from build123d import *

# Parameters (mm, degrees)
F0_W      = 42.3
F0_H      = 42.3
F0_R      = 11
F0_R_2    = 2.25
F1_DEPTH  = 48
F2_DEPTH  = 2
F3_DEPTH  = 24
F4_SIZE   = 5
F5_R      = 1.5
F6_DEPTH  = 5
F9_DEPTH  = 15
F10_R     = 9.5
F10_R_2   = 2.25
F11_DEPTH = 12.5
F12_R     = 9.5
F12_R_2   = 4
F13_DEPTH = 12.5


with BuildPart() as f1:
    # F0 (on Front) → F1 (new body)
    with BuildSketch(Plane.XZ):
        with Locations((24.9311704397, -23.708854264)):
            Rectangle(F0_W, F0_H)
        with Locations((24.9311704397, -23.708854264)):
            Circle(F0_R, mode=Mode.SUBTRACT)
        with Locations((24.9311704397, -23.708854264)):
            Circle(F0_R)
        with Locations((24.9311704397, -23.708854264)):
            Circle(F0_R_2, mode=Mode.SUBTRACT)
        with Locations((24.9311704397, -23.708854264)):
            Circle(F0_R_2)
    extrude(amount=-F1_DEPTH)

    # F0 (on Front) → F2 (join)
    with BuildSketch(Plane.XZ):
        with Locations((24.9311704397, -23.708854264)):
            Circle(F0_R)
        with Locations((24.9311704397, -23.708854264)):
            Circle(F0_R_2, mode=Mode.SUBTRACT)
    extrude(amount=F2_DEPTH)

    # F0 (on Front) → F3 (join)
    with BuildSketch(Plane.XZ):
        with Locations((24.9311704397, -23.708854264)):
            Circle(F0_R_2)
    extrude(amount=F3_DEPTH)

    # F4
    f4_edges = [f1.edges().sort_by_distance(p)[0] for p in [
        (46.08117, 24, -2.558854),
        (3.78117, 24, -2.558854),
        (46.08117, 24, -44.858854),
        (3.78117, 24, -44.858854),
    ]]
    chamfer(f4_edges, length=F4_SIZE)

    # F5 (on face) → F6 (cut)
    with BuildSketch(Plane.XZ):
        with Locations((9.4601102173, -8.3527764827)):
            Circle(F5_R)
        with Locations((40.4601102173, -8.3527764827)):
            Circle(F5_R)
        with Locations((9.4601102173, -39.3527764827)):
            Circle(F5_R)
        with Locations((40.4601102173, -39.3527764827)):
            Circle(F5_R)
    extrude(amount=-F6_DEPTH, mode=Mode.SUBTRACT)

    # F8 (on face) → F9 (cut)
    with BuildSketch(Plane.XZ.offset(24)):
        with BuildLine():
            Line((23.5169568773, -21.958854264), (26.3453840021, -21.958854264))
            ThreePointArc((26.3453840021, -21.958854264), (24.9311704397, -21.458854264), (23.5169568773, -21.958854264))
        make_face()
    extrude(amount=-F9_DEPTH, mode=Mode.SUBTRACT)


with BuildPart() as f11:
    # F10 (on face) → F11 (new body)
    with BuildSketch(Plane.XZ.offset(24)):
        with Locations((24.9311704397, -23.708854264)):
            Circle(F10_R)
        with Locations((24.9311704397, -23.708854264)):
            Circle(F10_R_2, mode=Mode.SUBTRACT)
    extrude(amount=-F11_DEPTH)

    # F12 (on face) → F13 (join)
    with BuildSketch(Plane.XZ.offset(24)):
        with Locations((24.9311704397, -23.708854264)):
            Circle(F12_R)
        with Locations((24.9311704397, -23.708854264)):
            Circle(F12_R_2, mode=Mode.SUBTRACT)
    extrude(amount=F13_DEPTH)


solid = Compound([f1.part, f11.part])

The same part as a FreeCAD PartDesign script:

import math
import FreeCAD as App
import Part
import Sketcher

V = App.Vector
Q = App.Units.Quantity


def edges_at(feature, points):
    """Names of the edges that pass closest to the given points."""
    edges = feature.Shape.Edges
    near = lambda p: min(range(len(edges)), key=lambda i: edges[i].distToShape(Part.Vertex(*p))[0])
    return sorted({f"Edge{near(p) + 1}" for p in points})


def add_polygon(sketch, points):
    """Adds a closed chain of lines whose ends are joined by coincident constraints."""
    first, n = sketch.GeometryCount, len(points)
    for a, b in zip(points, points[1:] + points[:1]):
        sketch.addGeometry(Part.LineSegment(App.Vector(*a, 0), App.Vector(*b, 0)), False)
    for i in range(n):
        sketch.addConstraint(Sketcher.Constraint("Coincident", first + i, 2, first + (i + 1) % n, 1))

doc = App.newDocument("Part")
params = doc.addObject("Spreadsheet::Sheet", "Params")
for row, (alias, value) in enumerate([
    ("sketch1_width", "42.3 mm"),
    ("pad1_length", "48 mm"),
    ("sketch2_diameter", "22 mm"),
    ("sketch2_diameter2", "4.5 mm"),
    ("pad2_length", "2 mm"),
    ("sketch3_diameter", "4.5 mm"),
    ("pad3_length", "24 mm"),
    ("chamfer_size", "5 mm"),
    ("sketch4_diameter", "3 mm"),
    ("pocket1_length", "5 mm"),
    ("sketch5_radius", "2.25 mm"),
    ("pocket2_length", "15 mm"),
    ("sketch6_diameter", "19 mm"),
    ("sketch6_diameter2", "4.5 mm"),
    ("pad4_length", "12.5 mm"),
    ("sketch7_diameter", "19 mm"),
    ("sketch7_diameter2", "8 mm"),
    ("pad5_length", "12.5 mm"),
], start=1):
    params.set(f"A{row}", alias)
    params.set(f"B{row}", "=" + value)
    params.setAlias(f"B{row}", alias)

body = doc.addObject("PartDesign::Body", "Body")

# Sketch on XZ plane
sketch1 = body.newObject("Sketcher::SketchObject", "Sketch")
sketch1.AttachmentSupport = (doc.getObject("XZ_Plane"), [""])
sketch1.MapMode = "FlatFace"
add_polygon(sketch1, [(3.78117, -2.558854), (3.78117, -44.858854), (46.08117, -44.858854), (46.08117, -2.558854)])  # lines 0-3
sketch1.addConstraint([
    Sketcher.Constraint("Vertical", 0),
    Sketcher.Constraint("Horizontal", 1),
    Sketcher.Constraint("Vertical", 2),
    Sketcher.Constraint("Horizontal", 3),
    Sketcher.Constraint("Equal", 3, 0),
    Sketcher.Constraint("DistanceX", 1, 1, 1, 2, Q("42.3 mm")),
    Sketcher.Constraint("DistanceX", -1, 1, 0, 2, Q("3.78117 mm")),
    Sketcher.Constraint("DistanceY", 0, 2, -1, 1, Q("44.858854 mm")),
])
sketch1.setExpression("Constraints[9]", "Params.sketch1_width")
pad1 = body.newObject("PartDesign::Pad", "Pad")
pad1.Profile = sketch1
pad1.setExpression("Length", "Params.pad1_length")
pad1.Reversed = True

# Sketch on XZ plane
sketch2 = body.newObject("Sketcher::SketchObject", "Sketch001")
sketch2.AttachmentSupport = (doc.getObject("XZ_Plane"), [""])
sketch2.MapMode = "FlatFace"
sketch2.addGeometry([
    Part.Circle(V(24.93117, -23.708854, 0), V(0, 0, 1), 11),
    Part.Circle(V(24.93117, -23.708854, 0), V(0, 0, 1), 2.25),
], False)
sketch2.addConstraint([
    Sketcher.Constraint("Coincident", 1, 3, 0, 3),
    Sketcher.Constraint("Diameter", 0, Q("22 mm")),
    Sketcher.Constraint("Diameter", 1, Q("4.5 mm")),
    Sketcher.Constraint("DistanceX", -1, 1, 0, 3, Q("24.93117 mm")),
    Sketcher.Constraint("DistanceY", 0, 3, -1, 1, Q("23.708854 mm")),
])
sketch2.setExpression("Constraints[1]", "Params.sketch2_diameter")
sketch2.setExpression("Constraints[2]", "Params.sketch2_diameter2")
pad2 = body.newObject("PartDesign::Pad", "Pad001")
pad2.Profile = sketch2
pad2.setExpression("Length", "Params.pad2_length")

# Sketch on XZ plane
sketch3 = body.newObject("Sketcher::SketchObject", "Sketch002")
sketch3.AttachmentSupport = (doc.getObject("XZ_Plane"), [""])
sketch3.MapMode = "FlatFace"
sketch3.addGeometry(Part.Circle(V(24.93117, -23.708854, 0), V(0, 0, 1), 2.25), False)
sketch3.addConstraint([
    Sketcher.Constraint("Diameter", 0, Q("4.5 mm")),
    Sketcher.Constraint("DistanceX", -1, 1, 0, 3, Q("24.93117 mm")),
    Sketcher.Constraint("DistanceY", 0, 3, -1, 1, Q("23.708854 mm")),
])
sketch3.setExpression("Constraints[0]", "Params.sketch3_diameter")
pad3 = body.newObject("PartDesign::Pad", "Pad002")
pad3.Profile = sketch3
pad3.setExpression("Length", "Params.pad3_length")
doc.recompute()

chamfer = body.newObject("PartDesign::Chamfer", "Chamfer")
chamfer.Base = (pad3, edges_at(pad3, [
    (46.081, 24, -2.559),
    (3.781, 24, -2.559),
    (46.081, 24, -44.859),
    (3.781, 24, -44.859),
]))
chamfer.setExpression("Size", "Params.chamfer_size")

# Sketch on XZ plane
sketch4 = body.newObject("Sketcher::SketchObject", "Sketch003")
sketch4.AttachmentSupport = (doc.getObject("XZ_Plane"), [""])
sketch4.MapMode = "FlatFace"
sketch4.addGeometry([
    Part.Circle(V(9.46011, -8.352776, 0), V(0, 0, 1), 1.5),
    Part.Circle(V(40.46011, -8.352776, 0), V(0, 0, 1), 1.5),
    Part.Circle(V(9.46011, -39.352776, 0), V(0, 0, 1), 1.5),
    Part.Circle(V(40.46011, -39.352776, 0), V(0, 0, 1), 1.5),
], False)
sketch4.addConstraint([
    Sketcher.Constraint("Equal", 0, 1),
    Sketcher.Constraint("Equal", 1, 2),
    Sketcher.Constraint("Equal", 2, 3),
    Sketcher.Constraint("Horizontal", 0, 3, 1, 3),
    Sketcher.Constraint("Horizontal", 2, 3, 3, 3),
    Sketcher.Constraint("Vertical", 0, 3, 2, 3),
    Sketcher.Constraint("Vertical", 1, 3, 3, 3),
    Sketcher.Constraint("Diameter", 0, Q("3 mm")),
    Sketcher.Constraint("DistanceX", 0, 3, 1, 3, Q("31 mm")),
    Sketcher.Constraint("DistanceY", 2, 3, 0, 3, Q("31 mm")),
    Sketcher.Constraint("DistanceX", -1, 1, 0, 3, Q("9.46011 mm")),
    Sketcher.Constraint("DistanceY", 0, 3, -1, 1, Q("8.352776 mm")),
])
sketch4.setExpression("Constraints[7]", "Params.sketch4_diameter")
pocket1 = body.newObject("PartDesign::Pocket", "Pocket")
pocket1.Profile = sketch4
pocket1.setExpression("Length", "Params.pocket1_length")

# Sketch on XZ plane
sketch5 = body.newObject("Sketcher::SketchObject", "Sketch004")
sketch5.AttachmentSupport = (doc.getObject("XZ_Plane"), [""])
sketch5.MapMode = "FlatFace"
sketch5.AttachmentOffset = App.Placement(V(0, 0, 24), App.Rotation())
sketch5.addGeometry([
    Part.LineSegment(V(23.516957, -21.958854, 0), V(26.345384, -21.958854, 0)),
    Part.ArcOfCircle(Part.Circle(V(24.93117, -23.708854, 0), V(0, 0, 1), 2.25), math.radians(51.057559), math.radians(128.942441)),
], False)
sketch5.addConstraint([
    Sketcher.Constraint("Coincident", 0, 1, 1, 2),
    Sketcher.Constraint("Coincident", 1, 1, 0, 2),
    Sketcher.Constraint("Horizontal", 0),
    Sketcher.Constraint("Radius", 1, Q("2.25 mm")),
    Sketcher.Constraint("DistanceY", 1, 3, 0, 1, Q("1.75 mm")),
    Sketcher.Constraint("DistanceX", -1, 1, 1, 3, Q("24.93117 mm")),
    Sketcher.Constraint("DistanceY", 1, 3, -1, 1, Q("23.708854 mm")),
])
sketch5.setExpression("Constraints[3]", "Params.sketch5_radius")
pocket2 = body.newObject("PartDesign::Pocket", "Pocket001")
pocket2.Profile = sketch5
pocket2.setExpression("Length", "Params.pocket2_length")
body2 = doc.addObject("PartDesign::Body", "Body001")

# Sketch on XZ plane
sketch6 = body2.newObject("Sketcher::SketchObject", "Sketch005")
sketch6.AttachmentSupport = (doc.getObject("XZ_Plane001"), [""])
sketch6.MapMode = "FlatFace"
sketch6.AttachmentOffset = App.Placement(V(0, 0, 24), App.Rotation())
sketch6.addGeometry([
    Part.Circle(V(24.93117, -23.708854, 0), V(0, 0, 1), 9.5),
    Part.Circle(V(24.93117, -23.708854, 0), V(0, 0, 1), 2.25),
], False)
sketch6.addConstraint([
    Sketcher.Constraint("Coincident", 1, 3, 0, 3),
    Sketcher.Constraint("Diameter", 0, Q("19 mm")),
    Sketcher.Constraint("Diameter", 1, Q("4.5 mm")),
    Sketcher.Constraint("DistanceX", -1, 1, 0, 3, Q("24.93117 mm")),
    Sketcher.Constraint("DistanceY", 0, 3, -1, 1, Q("23.708854 mm")),
])
sketch6.setExpression("Constraints[1]", "Params.sketch6_diameter")
sketch6.setExpression("Constraints[2]", "Params.sketch6_diameter2")
pad4 = body2.newObject("PartDesign::Pad", "Pad003")
pad4.Profile = sketch6
pad4.setExpression("Length", "Params.pad4_length")
pad4.Reversed = True

# Sketch on XZ plane
sketch7 = body2.newObject("Sketcher::SketchObject", "Sketch006")
sketch7.AttachmentSupport = (doc.getObject("XZ_Plane001"), [""])
sketch7.MapMode = "FlatFace"
sketch7.AttachmentOffset = App.Placement(V(0, 0, 24), App.Rotation())
sketch7.addGeometry([
    Part.Circle(V(24.93117, -23.708854, 0), V(0, 0, 1), 9.5),
    Part.Circle(V(24.93117, -23.708854, 0), V(0, 0, 1), 4),
], False)
sketch7.addConstraint([
    Sketcher.Constraint("Coincident", 1, 3, 0, 3),
    Sketcher.Constraint("Diameter", 0, Q("19 mm")),
    Sketcher.Constraint("Diameter", 1, Q("8 mm")),
    Sketcher.Constraint("DistanceX", -1, 1, 0, 3, Q("24.93117 mm")),
    Sketcher.Constraint("DistanceY", 0, 3, -1, 1, Q("23.708854 mm")),
])
sketch7.setExpression("Constraints[1]", "Params.sketch7_diameter")
sketch7.setExpression("Constraints[2]", "Params.sketch7_diameter2")
pad5 = body2.newObject("PartDesign::Pad", "Pad004")
pad5.Profile = sketch7
pad5.setExpression("Length", "Params.pad5_length")

doc.recompute()
